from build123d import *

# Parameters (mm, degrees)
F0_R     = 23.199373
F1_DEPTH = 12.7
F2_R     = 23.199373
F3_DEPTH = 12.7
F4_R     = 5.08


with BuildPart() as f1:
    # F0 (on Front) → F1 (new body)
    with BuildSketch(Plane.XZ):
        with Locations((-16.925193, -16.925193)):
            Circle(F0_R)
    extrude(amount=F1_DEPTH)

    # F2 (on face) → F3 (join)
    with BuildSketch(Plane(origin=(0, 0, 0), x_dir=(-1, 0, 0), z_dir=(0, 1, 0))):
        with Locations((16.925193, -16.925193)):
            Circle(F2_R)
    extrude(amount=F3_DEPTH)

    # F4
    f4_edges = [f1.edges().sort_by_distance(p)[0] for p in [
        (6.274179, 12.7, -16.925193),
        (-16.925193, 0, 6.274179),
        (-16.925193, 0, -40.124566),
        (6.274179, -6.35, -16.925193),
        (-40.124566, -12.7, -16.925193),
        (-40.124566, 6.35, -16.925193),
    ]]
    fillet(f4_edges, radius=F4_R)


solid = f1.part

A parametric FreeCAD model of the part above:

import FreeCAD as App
import Part
import Sketcher

V = App.Vector
Q = App.Units.Quantity

doc = App.newDocument("Part")
body = doc.addObject("PartDesign::Body", "Body")

sketch1 = body.newObject("Sketcher::SketchObject", "Sketch")
sketch1.AttachmentSupport = (doc.getObject("XZ_Plane"), [""])
sketch1.MapMode = "FlatFace"
sketch1.addGeometry(Part.Circle(V(-17, -17, 0), V(0, 0, 1), 23), False)
sketch1.addConstraint([
    Sketcher.Constraint("Diameter", 0, 46.398746),
    Sketcher.Constraint("DistanceX", 0, 3, -1, 1, 16.925193),
    Sketcher.Constraint("DistanceY", 0, 3, -1, 1, 16.925193),
])
pad1 = body.newObject("PartDesign::Pad", "Pad")
pad1.Profile = sketch1
pad1.Length = Q("0.5 in")

sketch2 = body.newObject("Sketcher::SketchObject", "Sketch001")
sketch2.AttachmentSupport = (doc.getObject("XZ_Plane"), [""])
sketch2.MapMode = "FlatFace"
sketch2.addGeometry(Part.Circle(V(-17, -17, 0), V(0, 0, 1), 23), False)
sketch2.addConstraint([
    Sketcher.Constraint("Diameter", 0, 46.398746),
    Sketcher.Constraint("DistanceX", 0, 3, -1, 1, 16.925193),
    Sketcher.Constraint("DistanceY", 0, 3, -1, 1, 16.925193),
])
pad2 = body.newObject("PartDesign::Pad", "Pad001")
pad2.Profile = sketch2
pad2.Length = Q("0.5 in")
pad2.Reversed = True
doc.recompute()

fillet = body.newObject("PartDesign::Fillet", "Fillet")
fillet.Base = (pad2, ["Edge1"])
fillet.UseAllEdges = True
fillet.Radius = Q("0.2 in")

doc.recompute()
